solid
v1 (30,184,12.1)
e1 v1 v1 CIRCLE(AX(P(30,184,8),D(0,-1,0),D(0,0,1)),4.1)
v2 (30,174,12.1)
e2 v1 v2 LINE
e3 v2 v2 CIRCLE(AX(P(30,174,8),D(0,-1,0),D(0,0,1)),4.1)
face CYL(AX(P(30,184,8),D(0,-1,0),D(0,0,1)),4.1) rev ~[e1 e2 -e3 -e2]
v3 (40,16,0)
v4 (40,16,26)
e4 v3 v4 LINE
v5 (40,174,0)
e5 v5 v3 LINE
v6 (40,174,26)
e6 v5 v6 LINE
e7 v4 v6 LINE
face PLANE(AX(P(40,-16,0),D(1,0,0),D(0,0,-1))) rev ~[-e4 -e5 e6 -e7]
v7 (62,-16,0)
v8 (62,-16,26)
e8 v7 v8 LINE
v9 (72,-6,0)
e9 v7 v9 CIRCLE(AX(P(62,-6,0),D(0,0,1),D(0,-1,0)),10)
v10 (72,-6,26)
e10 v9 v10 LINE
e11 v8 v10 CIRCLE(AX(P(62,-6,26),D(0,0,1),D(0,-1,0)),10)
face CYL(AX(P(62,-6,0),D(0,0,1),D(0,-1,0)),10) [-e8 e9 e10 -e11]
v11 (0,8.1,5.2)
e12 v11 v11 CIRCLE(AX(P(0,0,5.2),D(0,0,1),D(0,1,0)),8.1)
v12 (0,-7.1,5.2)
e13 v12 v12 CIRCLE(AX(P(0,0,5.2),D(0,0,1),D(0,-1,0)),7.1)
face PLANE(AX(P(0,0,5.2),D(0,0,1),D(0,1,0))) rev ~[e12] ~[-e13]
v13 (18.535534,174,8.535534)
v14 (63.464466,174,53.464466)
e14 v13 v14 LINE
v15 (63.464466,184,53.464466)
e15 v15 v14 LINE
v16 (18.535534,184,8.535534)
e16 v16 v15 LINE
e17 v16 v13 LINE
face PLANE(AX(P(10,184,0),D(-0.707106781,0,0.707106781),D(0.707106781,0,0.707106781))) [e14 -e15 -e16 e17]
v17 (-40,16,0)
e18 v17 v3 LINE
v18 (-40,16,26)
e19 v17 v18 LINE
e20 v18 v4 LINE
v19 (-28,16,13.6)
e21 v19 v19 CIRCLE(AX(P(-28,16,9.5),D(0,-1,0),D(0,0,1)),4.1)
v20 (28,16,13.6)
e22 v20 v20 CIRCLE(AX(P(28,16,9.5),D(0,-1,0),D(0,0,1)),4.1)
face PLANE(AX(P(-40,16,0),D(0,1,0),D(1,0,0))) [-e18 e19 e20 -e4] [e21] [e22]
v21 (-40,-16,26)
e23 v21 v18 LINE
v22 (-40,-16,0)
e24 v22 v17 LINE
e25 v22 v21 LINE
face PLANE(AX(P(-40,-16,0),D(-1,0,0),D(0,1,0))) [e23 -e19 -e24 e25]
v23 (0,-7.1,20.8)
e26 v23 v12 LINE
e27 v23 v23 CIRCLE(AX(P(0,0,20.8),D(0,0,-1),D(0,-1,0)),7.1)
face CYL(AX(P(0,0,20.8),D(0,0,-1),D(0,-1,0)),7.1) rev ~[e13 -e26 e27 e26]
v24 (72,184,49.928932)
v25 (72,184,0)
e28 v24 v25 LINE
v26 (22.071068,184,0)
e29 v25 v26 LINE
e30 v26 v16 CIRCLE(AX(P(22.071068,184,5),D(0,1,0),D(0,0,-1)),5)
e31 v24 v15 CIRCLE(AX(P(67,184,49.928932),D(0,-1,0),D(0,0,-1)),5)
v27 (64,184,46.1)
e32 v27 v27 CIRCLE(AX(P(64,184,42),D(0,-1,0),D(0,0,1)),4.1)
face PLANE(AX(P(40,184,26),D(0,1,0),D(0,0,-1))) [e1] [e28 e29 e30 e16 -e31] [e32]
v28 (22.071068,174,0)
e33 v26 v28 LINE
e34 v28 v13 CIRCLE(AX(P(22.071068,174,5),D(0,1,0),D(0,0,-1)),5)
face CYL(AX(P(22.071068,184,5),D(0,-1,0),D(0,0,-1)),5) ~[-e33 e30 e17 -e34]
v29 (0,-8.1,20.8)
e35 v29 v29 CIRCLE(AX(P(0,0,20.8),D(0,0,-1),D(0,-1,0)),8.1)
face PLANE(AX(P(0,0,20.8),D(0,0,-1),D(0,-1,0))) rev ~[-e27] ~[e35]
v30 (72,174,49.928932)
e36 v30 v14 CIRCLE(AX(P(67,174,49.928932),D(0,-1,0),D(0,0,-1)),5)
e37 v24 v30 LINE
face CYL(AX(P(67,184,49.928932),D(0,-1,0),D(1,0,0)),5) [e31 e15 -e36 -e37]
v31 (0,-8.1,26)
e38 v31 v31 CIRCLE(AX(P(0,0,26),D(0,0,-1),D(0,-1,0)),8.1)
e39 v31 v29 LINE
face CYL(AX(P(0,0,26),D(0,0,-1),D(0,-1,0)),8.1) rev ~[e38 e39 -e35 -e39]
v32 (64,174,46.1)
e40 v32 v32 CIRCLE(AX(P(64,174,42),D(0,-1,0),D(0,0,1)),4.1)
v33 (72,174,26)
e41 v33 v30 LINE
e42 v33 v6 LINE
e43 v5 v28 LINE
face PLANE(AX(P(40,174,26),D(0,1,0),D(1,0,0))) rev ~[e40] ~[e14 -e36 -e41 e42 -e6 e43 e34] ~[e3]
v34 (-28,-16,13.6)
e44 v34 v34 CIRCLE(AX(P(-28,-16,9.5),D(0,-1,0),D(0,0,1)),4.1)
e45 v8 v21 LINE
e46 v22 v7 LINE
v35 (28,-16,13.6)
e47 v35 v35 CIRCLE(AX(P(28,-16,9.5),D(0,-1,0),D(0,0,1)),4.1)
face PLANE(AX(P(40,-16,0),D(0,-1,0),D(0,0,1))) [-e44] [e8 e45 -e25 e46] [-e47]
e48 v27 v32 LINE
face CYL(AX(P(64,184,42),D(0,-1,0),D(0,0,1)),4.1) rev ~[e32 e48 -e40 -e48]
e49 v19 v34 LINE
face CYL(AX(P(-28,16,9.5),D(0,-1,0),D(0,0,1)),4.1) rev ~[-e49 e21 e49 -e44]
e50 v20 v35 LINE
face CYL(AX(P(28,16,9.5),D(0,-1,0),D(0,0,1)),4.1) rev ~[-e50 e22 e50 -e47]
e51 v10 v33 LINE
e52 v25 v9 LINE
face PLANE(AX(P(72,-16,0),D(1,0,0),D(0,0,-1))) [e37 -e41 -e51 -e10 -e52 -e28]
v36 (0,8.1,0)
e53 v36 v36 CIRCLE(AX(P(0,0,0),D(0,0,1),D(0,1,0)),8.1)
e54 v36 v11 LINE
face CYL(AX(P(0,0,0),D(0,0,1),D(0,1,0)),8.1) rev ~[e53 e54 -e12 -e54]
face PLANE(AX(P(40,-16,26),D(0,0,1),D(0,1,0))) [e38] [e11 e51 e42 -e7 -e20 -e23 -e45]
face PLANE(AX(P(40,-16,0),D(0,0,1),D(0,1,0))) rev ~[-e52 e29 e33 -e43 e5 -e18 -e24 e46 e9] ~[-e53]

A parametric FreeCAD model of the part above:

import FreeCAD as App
import Part
import Sketcher

V = App.Vector


def edges_at(feature, points):
    """Names of the edges that pass closest to the given points."""
    edges = feature.Shape.Edges
    near = lambda p: min(range(len(edges)), key=lambda i: edges[i].distToShape(Part.Vertex(*p))[0])
    return sorted({f"Edge{near(p) + 1}" for p in points})

doc = App.newDocument("Part")
params = doc.addObject("Spreadsheet::Sheet", "Params")
for row, (alias, value) in enumerate([
    ("sketch1_width", "80 mm"),
    ("sketch1_height", "32 mm"),
    ("pad1_length", "26 mm"),
    ("sketch2_diameter", "8.2 mm"),
    ("hole_diameter", "8.2 mm"),
    ("sketch3_diameter", "14.2 mm"),
    ("hole2_diameter", "14.2 mm"),
    ("hole2_cbore_diameter", "16.2 mm"),
    ("hole2_cbore_depth", "5.2 mm"),
    ("sketch4_diameter", "14.2 mm"),
    ("hole3_diameter", "14.2 mm"),
    ("hole3_cbore_diameter", "16.2 mm"),
    ("hole3_cbore_depth", "5.2 mm"),
    ("sketch5_width", "200 mm"),
    ("sketch5_height", "26 mm"),
    ("pad2_length", "32 mm"),
    ("fillet_radius", "10 mm"),
    ("sketch6_width", "62 mm"),
    ("pad3_length", "10 mm"),
    ("fillet2_radius", "5 mm"),
    ("fillet3_radius", "5 mm"),
    ("sketch7_diameter", "8.2 mm"),
    ("hole4_diameter", "8.2 mm"),
    ("hole4_depth", "20 mm"),
], start=1):
    params.set(f"A{row}", alias)
    params.set(f"B{row}", "=" + value)
    params.setAlias(f"B{row}", alias)

body = doc.addObject("PartDesign::Body", "Body")

# Sketch on XY plane
sketch1 = body.newObject("Sketcher::SketchObject", "Sketch")
sketch1.AttachmentSupport = (doc.getObject("XY_Plane"), [""])
sketch1.MapMode = "FlatFace"
sketch1.addGeometry(Part.LineSegment(V(40, 16, 0), V(-40, 16, 0)), False)
sketch1.addGeometry(Part.LineSegment(V(-40, 16, 0), V(-40, -16, 0)), False)
sketch1.addGeometry(Part.LineSegment(V(-40, -16, 0), V(40, -16, 0)), False)
sketch1.addGeometry(Part.LineSegment(V(40, -16, 0), V(40, 16, 0)), False)
sketch1.addConstraint(Sketcher.Constraint("Coincident", 0, 2, 1, 1))
sketch1.addConstraint(Sketcher.Constraint("Coincident", 1, 2, 2, 1))
sketch1.addConstraint(Sketcher.Constraint("Coincident", 2, 2, 3, 1))
sketch1.addConstraint(Sketcher.Constraint("Coincident", 3, 2, 0, 1))
sketch1.addConstraint(Sketcher.Constraint("Horizontal", 0))
sketch1.addConstraint(Sketcher.Constraint("Vertical", 1))
sketch1.addConstraint(Sketcher.Constraint("Horizontal", 2))
sketch1.addConstraint(Sketcher.Constraint("Vertical", 3))
sketch1.addConstraint(Sketcher.Constraint("Symmetric", 0, 2, 2, 2, -1, 1))
sketch1.addConstraint(Sketcher.Constraint("DistanceX", 0, 2, 0, 1, 80.0))
sketch1.addConstraint(Sketcher.Constraint("DistanceY", 1, 2, 1, 1, 32.0))
sketch1.setExpression("Constraints[9]", "Params.sketch1_width")
sketch1.setExpression("Constraints[10]", "Params.sketch1_height")
pad1 = body.newObject("PartDesign::Pad", "Pad")
pad1.Profile = sketch1
pad1.setExpression("Length", "Params.pad1_length")

# Sketch on XZ plane
sketch2 = body.newObject("Sketcher::SketchObject", "Sketch001")
sketch2.AttachmentSupport = (doc.getObject("XZ_Plane"), [""])
sketch2.MapMode = "FlatFace"
sketch2.AttachmentOffset = App.Placement(V(0, 0, -16), App.Rotation())
sketch2.addGeometry(Part.Circle(V(-28, 9.5, 0), V(0, 0, 1), 4.1), False)
sketch2.addGeometry(Part.Circle(V(28, 9.5, 0), V(0, 0, 1), 4.1), False)
sketch2.addConstraint(Sketcher.Constraint("Equal", 0, 1))
sketch2.addConstraint(Sketcher.Constraint("Symmetric", 0, 3, 1, 3, -2))
sketch2.addConstraint(Sketcher.Constraint("Diameter", 0, 8.2))
sketch2.addConstraint(Sketcher.Constraint("DistanceX", 0, 3, -1, 1, 28.0))
sketch2.addConstraint(Sketcher.Constraint("DistanceY", -1, 1, 0, 3, 9.5))
sketch2.setExpression("Constraints[2]", "Params.sketch2_diameter")
doc.recompute()
hole = body.newObject("PartDesign::Hole", "Hole")
hole.Profile = sketch2
hole.ThreadType = "None"
hole.setExpression("Diameter", "Params.hole_diameter")
hole.DepthType = "ThroughAll"
hole.Reversed = True

# Sketch on XY plane
sketch3 = body.newObject("Sketcher::SketchObject", "Sketch002")
sketch3.AttachmentSupport = (doc.getObject("XY_Plane"), [""])
sketch3.MapMode = "FlatFace"
sketch3.AttachmentOffset = App.Placement(V(0, 0, 26), App.Rotation())
sketch3.addGeometry(Part.Circle(V(0, 0, 0), V(0, 0, 1), 7.1), False)
sketch3.addConstraint(Sketcher.Constraint("Coincident", 0, 3, -1, 1))
sketch3.addConstraint(Sketcher.Constraint("Diameter", 0, 14.2))
sketch3.setExpression("Constraints[1]", "Params.sketch3_diameter")
doc.recompute()
hole2 = body.newObject("PartDesign::Hole", "Hole001")
hole2.Profile = sketch3
hole2.ThreadType = "None"
hole2.setExpression("Diameter", "Params.hole2_diameter")
hole2.DepthType = "ThroughAll"
hole2.HoleCutType = "Counterbore"
hole2.setExpression("HoleCutDiameter", "Params.hole2_cbore_diameter")
hole2.setExpression("HoleCutDepth", "Params.hole2_cbore_depth")

# Sketch on XY plane
sketch4 = body.newObject("Sketcher::SketchObject", "Sketch003")
sketch4.AttachmentSupport = (doc.getObject("XY_Plane"), [""])
sketch4.MapMode = "FlatFace"
sketch4.addGeometry(Part.Circle(V(0, 0, 0), V(0, 0, 1), 7.1), False)
sketch4.addConstraint(Sketcher.Constraint("Coincident", 0, 3, -1, 1))
sketch4.addConstraint(Sketcher.Constraint("Diameter", 0, 14.2))
sketch4.setExpression("Constraints[1]", "Params.sketch4_diameter")
doc.recompute()
hole3 = body.newObject("PartDesign::Hole", "Hole002")
hole3.Profile = sketch4
hole3.ThreadType = "None"
hole3.setExpression("Diameter", "Params.hole3_diameter")
hole3.DepthType = "ThroughAll"
hole3.HoleCutType = "Counterbore"
hole3.setExpression("HoleCutDiameter", "Params.hole3_cbore_diameter")
hole3.setExpression("HoleCutDepth", "Params.hole3_cbore_depth")
hole3.Reversed = True

# Sketch on YZ plane
sketch5 = body.newObject("Sketcher::SketchObject", "Sketch004")
sketch5.AttachmentSupport = (doc.getObject("YZ_Plane"), [""])
sketch5.MapMode = "FlatFace"
sketch5.AttachmentOffset = App.Placement(V(0, 0, 40), App.Rotation())
sketch5.addGeometry(Part.LineSegment(V(-16, 26, 0), V(-16, 0, 0)), False)
sketch5.addGeometry(Part.LineSegment(V(-16, 0, 0), V(184, 0, 0)), False)
sketch5.addGeometry(Part.LineSegment(V(184, 0, 0), V(184, 26, 0)), False)
sketch5.addGeometry(Part.LineSegment(V(184, 26, 0), V(-16, 26, 0)), False)
sketch5.addConstraint(Sketcher.Constraint("Coincident", 0, 2, 1, 1))
sketch5.addConstraint(Sketcher.Constraint("Coincident", 1, 2, 2, 1))
sketch5.addConstraint(Sketcher.Constraint("Coincident", 2, 2, 3, 1))
sketch5.addConstraint(Sketcher.Constraint("Coincident", 3, 2, 0, 1))
sketch5.addConstraint(Sketcher.Constraint("Vertical", 0))
sketch5.addConstraint(Sketcher.Constraint("Horizontal", 1))
sketch5.addConstraint(Sketcher.Constraint("Vertical", 2))
sketch5.addConstraint(Sketcher.Constraint("Horizontal", 3))
sketch5.addConstraint(Sketcher.Constraint("PointOnObject", 0, 2, -1))
sketch5.addConstraint(Sketcher.Constraint("DistanceX", 1, 1, 1, 2, 200.0))
sketch5.addConstraint(Sketcher.Constraint("DistanceY", 0, 2, 0, 1, 26.0))
sketch5.addConstraint(Sketcher.Constraint("DistanceX", 0, 2, -1, 1, 16.0))
sketch5.setExpression("Constraints[9]", "Params.sketch5_width")
sketch5.setExpression("Constraints[10]", "Params.sketch5_height")
pad2 = body.newObject("PartDesign::Pad", "Pad001")
pad2.Profile = sketch5
pad2.setExpression("Length", "Params.pad2_length")
doc.recompute()

fillet = body.newObject("PartDesign::Fillet", "Fillet")
fillet.Base = (pad2, edges_at(pad2, [(72, -16, 13)]))
fillet.setExpression("Radius", "Params.fillet_radius")

# Sketch on XZ plane
sketch6 = body.newObject("Sketcher::SketchObject", "Sketch005")
sketch6.AttachmentSupport = (doc.getObject("XZ_Plane"), [""])
sketch6.MapMode = "FlatFace"
sketch6.AttachmentOffset = App.Placement(V(0, 0, -184), App.Rotation())
sketch6.addGeometry(Part.LineSegment(V(72, 62, 0), V(72, 0, 0)), False)
sketch6.addGeometry(Part.LineSegment(V(72, 0, 0), V(10, 0, 0)), False)
sketch6.addGeometry(Part.LineSegment(V(10, 0, 0), V(72, 62, 0)), False)
sketch6.addConstraint(Sketcher.Constraint("Coincident", 0, 2, 1, 1))
sketch6.addConstraint(Sketcher.Constraint("Coincident", 1, 2, 2, 1))
sketch6.addConstraint(Sketcher.Constraint("Coincident", 2, 2, 0, 1))
sketch6.addConstraint(Sketcher.Constraint("Vertical", 0))
sketch6.addConstraint(Sketcher.Constraint("Horizontal", 1))
sketch6.addConstraint(Sketcher.Constraint("PointOnObject", 0, 2, -1))
sketch6.addConstraint(Sketcher.Constraint("Equal", 1, 0))
sketch6.addConstraint(Sketcher.Constraint("DistanceX", 1, 2, 1, 1, 62.0))
sketch6.addConstraint(Sketcher.Constraint("DistanceX", -1, 1, 0, 2, 72.0))
sketch6.setExpression("Constraints[7]", "Params.sketch6_width")
pad3 = body.newObject("PartDesign::Pad", "Pad002")
pad3.Profile = sketch6
pad3.setExpression("Length", "Params.pad3_length")
doc.recompute()

fillet2 = body.newObject("PartDesign::Fillet", "Fillet001")
fillet2.Base = (pad3, edges_at(pad3, [(10, 179, 0)]))
fillet2.setExpression("Radius", "Params.fillet2_radius")
doc.recompute()

fillet3 = body.newObject("PartDesign::Fillet", "Fillet002")
fillet3.Base = (fillet2, edges_at(fillet2, [(72, 179, 62)]))
fillet3.setExpression("Radius", "Params.fillet3_radius")

# Sketch on XZ plane
sketch7 = body.newObject("Sketcher::SketchObject", "Sketch006")
sketch7.AttachmentSupport = (doc.getObject("XZ_Plane"), [""])
sketch7.MapMode = "FlatFace"
sketch7.AttachmentOffset = App.Placement(V(0, 0, -184), App.Rotation())
sketch7.addGeometry(Part.Circle(V(30, 8, 0), V(0, 0, 1), 4.1), False)
sketch7.addGeometry(Part.Circle(V(64, 42, 0), V(0, 0, 1), 4.1), False)
sketch7.addConstraint(Sketcher.Constraint("Equal", 0, 1))
sketch7.addConstraint(Sketcher.Constraint("Diameter", 0, 8.2))
sketch7.addConstraint(Sketcher.Constraint("DistanceX", -1, 1, 0, 3, 30.0))
sketch7.addConstraint(Sketcher.Constraint("DistanceY", -1, 1, 0, 3, 8.0))
sketch7.addConstraint(Sketcher.Constraint("DistanceX", -1, 1, 1, 3, 64.0))
sketch7.addConstraint(Sketcher.Constraint("DistanceY", -1, 1, 1, 3, 42.0))
sketch7.setExpression("Constraints[1]", "Params.sketch7_diameter")
doc.recompute()
hole4 = body.newObject("PartDesign::Hole", "Hole003")
hole4.Profile = sketch7
hole4.ThreadType = "None"
hole4.setExpression("Diameter", "Params.hole4_diameter")
hole4.DepthType = "Dimension"
hole4.setExpression("Depth", "Params.hole4_depth")
hole4.DrillPoint = "Flat"
hole4.Reversed = True

doc.recompute()
